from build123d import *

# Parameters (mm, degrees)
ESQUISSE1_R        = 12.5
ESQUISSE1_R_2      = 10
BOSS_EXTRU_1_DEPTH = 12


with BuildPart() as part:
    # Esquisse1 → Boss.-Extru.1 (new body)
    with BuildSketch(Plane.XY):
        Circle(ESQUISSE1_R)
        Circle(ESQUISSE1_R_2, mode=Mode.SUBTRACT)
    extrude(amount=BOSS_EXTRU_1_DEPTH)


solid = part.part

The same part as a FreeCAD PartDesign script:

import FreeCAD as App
import Part
import Sketcher
Q = App.Units.Quantity

doc = App.newDocument("Part")
body = doc.addObject("PartDesign::Body", "Body")

sketch1 = body.newObject("Sketcher::SketchObject", "Sketch")
sketch1.AttachmentSupport = (doc.getObject("XY_Plane"), [""])
sketch1.MapMode = "FlatFace"
sketch1.addGeometry([
    Part.Circle(App.Vector(0, 0, 0), App.Vector(0, 0, 1), 12),
    Part.Circle(App.Vector(0, 0, 0), App.Vector(0, 0, 1), 10),
], False)
sketch1.addConstraint([
    Sketcher.Constraint("Coincident", 0, 3, -1, 1),
    Sketcher.Constraint("Coincident", 1, 3, -1, 1),
    Sketcher.Constraint("Diameter", 0, Q("25 mm")),
    Sketcher.Constraint("Diameter", 1, Q("20 mm")),
])
pad1 = body.newObject("PartDesign::Pad", "Pad")
pad1.Profile = sketch1
pad1.Length = 12

doc.recompute()
